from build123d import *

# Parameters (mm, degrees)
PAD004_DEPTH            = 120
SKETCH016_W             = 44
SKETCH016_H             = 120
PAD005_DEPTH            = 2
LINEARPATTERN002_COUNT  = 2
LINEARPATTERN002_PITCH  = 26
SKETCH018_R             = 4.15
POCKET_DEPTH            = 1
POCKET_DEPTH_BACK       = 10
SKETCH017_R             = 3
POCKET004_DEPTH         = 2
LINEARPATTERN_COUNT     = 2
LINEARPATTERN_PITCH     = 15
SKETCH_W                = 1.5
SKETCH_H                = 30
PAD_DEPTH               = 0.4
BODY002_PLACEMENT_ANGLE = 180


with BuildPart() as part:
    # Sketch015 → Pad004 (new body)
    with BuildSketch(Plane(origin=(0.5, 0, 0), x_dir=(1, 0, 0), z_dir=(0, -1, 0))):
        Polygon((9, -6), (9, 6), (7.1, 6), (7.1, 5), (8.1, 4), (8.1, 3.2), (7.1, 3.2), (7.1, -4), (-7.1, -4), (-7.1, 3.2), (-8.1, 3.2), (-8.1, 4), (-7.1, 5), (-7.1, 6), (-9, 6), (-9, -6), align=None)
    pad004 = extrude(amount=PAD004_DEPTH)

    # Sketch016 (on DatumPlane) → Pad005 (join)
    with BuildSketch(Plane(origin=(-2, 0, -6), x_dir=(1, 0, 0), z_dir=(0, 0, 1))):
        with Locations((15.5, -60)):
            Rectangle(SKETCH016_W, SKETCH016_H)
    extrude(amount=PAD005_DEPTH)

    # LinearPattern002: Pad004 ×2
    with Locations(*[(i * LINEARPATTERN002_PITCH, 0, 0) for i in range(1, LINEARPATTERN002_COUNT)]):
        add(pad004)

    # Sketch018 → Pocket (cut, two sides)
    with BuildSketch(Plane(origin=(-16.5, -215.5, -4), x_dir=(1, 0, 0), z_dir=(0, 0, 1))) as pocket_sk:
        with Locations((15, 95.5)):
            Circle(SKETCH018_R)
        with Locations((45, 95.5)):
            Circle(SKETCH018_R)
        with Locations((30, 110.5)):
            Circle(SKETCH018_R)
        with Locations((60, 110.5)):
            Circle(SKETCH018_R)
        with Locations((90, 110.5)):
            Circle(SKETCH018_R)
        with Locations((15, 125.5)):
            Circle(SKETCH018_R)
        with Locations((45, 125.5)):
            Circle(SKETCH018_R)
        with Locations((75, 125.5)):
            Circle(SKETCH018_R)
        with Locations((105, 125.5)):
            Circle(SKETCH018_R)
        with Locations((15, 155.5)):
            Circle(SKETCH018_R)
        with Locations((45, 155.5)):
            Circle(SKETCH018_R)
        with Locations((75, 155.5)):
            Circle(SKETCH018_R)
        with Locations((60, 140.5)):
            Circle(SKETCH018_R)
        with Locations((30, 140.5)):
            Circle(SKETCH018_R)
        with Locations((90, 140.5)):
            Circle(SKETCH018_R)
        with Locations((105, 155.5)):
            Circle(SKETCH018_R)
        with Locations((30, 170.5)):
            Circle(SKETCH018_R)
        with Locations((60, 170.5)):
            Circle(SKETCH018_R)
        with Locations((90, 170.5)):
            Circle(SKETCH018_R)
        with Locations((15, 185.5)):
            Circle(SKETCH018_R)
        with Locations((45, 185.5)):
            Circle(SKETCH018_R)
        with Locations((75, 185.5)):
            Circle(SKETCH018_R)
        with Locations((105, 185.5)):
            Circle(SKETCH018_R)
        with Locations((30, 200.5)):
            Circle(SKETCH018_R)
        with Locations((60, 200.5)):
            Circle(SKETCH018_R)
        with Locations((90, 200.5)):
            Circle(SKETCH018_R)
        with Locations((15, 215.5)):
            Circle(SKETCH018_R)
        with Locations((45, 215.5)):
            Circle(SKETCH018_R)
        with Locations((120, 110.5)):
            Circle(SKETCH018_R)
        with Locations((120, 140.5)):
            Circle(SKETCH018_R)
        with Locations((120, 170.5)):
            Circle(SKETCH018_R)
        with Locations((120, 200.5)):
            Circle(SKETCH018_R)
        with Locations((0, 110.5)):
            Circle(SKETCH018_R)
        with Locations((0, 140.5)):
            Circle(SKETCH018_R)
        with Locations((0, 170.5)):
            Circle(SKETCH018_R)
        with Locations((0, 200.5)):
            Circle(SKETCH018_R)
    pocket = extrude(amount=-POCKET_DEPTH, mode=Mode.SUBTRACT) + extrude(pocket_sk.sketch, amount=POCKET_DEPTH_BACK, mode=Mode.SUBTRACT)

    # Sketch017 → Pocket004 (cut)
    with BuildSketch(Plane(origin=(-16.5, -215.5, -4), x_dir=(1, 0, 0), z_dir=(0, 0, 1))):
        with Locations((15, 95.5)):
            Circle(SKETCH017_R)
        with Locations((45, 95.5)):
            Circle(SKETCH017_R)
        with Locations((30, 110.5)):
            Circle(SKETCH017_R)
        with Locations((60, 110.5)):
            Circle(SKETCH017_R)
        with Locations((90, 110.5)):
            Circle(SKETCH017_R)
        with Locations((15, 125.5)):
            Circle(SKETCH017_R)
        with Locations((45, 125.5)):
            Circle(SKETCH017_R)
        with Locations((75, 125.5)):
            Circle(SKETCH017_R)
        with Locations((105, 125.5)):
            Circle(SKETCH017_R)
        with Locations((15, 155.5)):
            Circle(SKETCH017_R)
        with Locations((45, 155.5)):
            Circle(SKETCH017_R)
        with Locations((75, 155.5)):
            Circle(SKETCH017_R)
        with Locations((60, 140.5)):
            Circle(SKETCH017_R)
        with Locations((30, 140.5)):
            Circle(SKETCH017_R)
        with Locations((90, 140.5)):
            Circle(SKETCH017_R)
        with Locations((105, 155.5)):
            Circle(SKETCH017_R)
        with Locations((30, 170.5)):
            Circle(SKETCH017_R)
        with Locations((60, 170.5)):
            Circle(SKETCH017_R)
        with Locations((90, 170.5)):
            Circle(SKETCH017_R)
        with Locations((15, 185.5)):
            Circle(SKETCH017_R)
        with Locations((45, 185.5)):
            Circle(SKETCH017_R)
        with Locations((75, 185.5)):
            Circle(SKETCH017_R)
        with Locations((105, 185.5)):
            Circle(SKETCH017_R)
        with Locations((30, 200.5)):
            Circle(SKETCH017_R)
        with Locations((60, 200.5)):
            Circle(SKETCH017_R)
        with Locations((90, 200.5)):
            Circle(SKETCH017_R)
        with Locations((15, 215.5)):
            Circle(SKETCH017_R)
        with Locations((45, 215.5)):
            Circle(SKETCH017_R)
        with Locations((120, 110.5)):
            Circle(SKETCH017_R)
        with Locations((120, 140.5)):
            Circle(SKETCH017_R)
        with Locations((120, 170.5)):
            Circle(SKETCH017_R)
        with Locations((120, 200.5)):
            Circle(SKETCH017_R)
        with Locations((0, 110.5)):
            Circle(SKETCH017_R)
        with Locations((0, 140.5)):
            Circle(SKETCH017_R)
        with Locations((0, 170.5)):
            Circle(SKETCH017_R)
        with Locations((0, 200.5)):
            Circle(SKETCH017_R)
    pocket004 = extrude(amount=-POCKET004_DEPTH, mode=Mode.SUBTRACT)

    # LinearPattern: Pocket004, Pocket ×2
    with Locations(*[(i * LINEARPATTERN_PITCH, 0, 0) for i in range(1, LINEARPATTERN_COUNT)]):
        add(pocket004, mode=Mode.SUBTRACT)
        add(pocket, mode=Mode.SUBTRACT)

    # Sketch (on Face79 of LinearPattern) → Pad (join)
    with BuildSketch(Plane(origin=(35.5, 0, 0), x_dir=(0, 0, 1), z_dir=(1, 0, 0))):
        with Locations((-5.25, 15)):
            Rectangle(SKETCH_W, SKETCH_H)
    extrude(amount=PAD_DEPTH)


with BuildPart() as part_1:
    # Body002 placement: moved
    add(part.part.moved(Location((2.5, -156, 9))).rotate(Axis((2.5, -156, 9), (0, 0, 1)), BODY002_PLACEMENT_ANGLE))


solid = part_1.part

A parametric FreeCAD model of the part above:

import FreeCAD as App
import Part
import Sketcher

V = App.Vector
Q = App.Units.Quantity


def add_polygon(sketch, points):
    """Adds a closed chain of lines whose ends are joined by coincident constraints."""
    first, n = sketch.GeometryCount, len(points)
    for a, b in zip(points, points[1:] + points[:1]):
        sketch.addGeometry(Part.LineSegment(App.Vector(*a, 0), App.Vector(*b, 0)), False)
    for i in range(n):
        sketch.addConstraint(Sketcher.Constraint("Coincident", first + i, 2, first + (i + 1) % n, 1))

doc = App.newDocument("Part")
body = doc.addObject("PartDesign::Body", "Body")

sketch1 = body.newObject("Sketcher::SketchObject", "Sketch")
sketch1.AttachmentSupport = (doc.getObject("XZ_Plane"), [""])
sketch1.MapMode = "FlatFace"
add_polygon(sketch1, [(9.5, -6), (9.5, 6), (7.6, 6), (7.6, 5), (8.6, 4), (8.6, 3.2), (7.6, 3.2), (7.6, -4), (-6.6, -4), (-6.6, 3.2), (-7.6, 3.2), (-7.6, 4), (-6.6, 5), (-6.6, 6), (-8.5, 6), (-8.5, -6)])
sketch1.addConstraint(Sketcher.Constraint("Vertical", 0))
sketch1.addConstraint(Sketcher.Constraint("Horizontal", 1))
sketch1.addConstraint(Sketcher.Constraint("Vertical", 2))
sketch1.addConstraint(Sketcher.Constraint("Vertical", 4))
sketch1.addConstraint(Sketcher.Constraint("Horizontal", 5))
sketch1.addConstraint(Sketcher.Constraint("Vertical", 6))
sketch1.addConstraint(Sketcher.Constraint("Horizontal", 7))
sketch1.addConstraint(Sketcher.Constraint("Vertical", 8))
sketch1.addConstraint(Sketcher.Constraint("Horizontal", 9))
sketch1.addConstraint(Sketcher.Constraint("Vertical", 10))
sketch1.addConstraint(Sketcher.Constraint("Vertical", 12))
sketch1.addConstraint(Sketcher.Constraint("Horizontal", 13))
sketch1.addConstraint(Sketcher.Constraint("Vertical", 14))
sketch1.addConstraint(Sketcher.Constraint("Horizontal", 15))
sketch1.addConstraint(Sketcher.Constraint("Symmetric", 6, 2, 10, 2, -1, 1))
sketch1.addConstraint(Sketcher.Constraint("Perpendicular", 3, 11))
sketch1.addConstraint(Sketcher.Constraint("Horizontal", 5, 2, 8, 2))
sketch1.addConstraint(Sketcher.Constraint("Horizontal", 3, 2, 10, 2))
sketch1.addConstraint(Sketcher.Constraint("Horizontal", 2, 2, 11, 2))
sketch1.addConstraint(Sketcher.Constraint("Horizontal", 1, 2, 12, 2))
sketch1.addConstraint(Sketcher.Constraint("Vertical", 2, 2, 5, 2))
sketch1.addConstraint(Sketcher.Constraint("Vertical", 8, 2, 11, 2))
sketch1.addConstraint(Sketcher.Constraint("Equal", 5, 9))
sketch1.addConstraint(Sketcher.Constraint("Equal", 1, 13))
sketch1.addConstraint(Sketcher.Constraint("Equal", 9, 2))
sketch1.addConstraint(Sketcher.Constraint("DistanceX", 5, 2, 5, 1, Q("1 mm")))
sketch1.addConstraint(Sketcher.Constraint("DistanceX", 15, 1, 15, 2, Q("18 mm")))
sketch1.addConstraint(Sketcher.Constraint("DistanceY", 0, 1, 0, 2, Q("12 mm")))
sketch1.addConstraint(Sketcher.Constraint("DistanceX", 1, 2, 1, 1, Q("1.9 mm")))
sketch1.addConstraint(Sketcher.Constraint("DistanceY", 4, 2, 4, 1, Q("0.8 mm")))
sketch1.addConstraint(Sketcher.Constraint("DistanceY", 6, 2, 6, 1, Q("7.2 mm")))
pad1 = body.newObject("PartDesign::Pad", "Pad")
pad1.Profile = sketch1
pad1.Length = 120

sketch2 = body.newObject("Sketcher::SketchObject", "Sketch001")
sketch2.AttachmentSupport = (doc.getObject("XY_Plane"), [""])
sketch2.MapMode = "FlatFace"
sketch2.AttachmentOffset = App.Placement(V(0, 0, -6), App.Rotation())
add_polygon(sketch2, [(-8.5, 0), (-8.5, -120), (35.5, -120), (35.5, 0)])
sketch2.addConstraint(Sketcher.Constraint("Vertical", 0))
sketch2.addConstraint(Sketcher.Constraint("Horizontal", 1))
sketch2.addConstraint(Sketcher.Constraint("Vertical", 2))
sketch2.addConstraint(Sketcher.Constraint("Horizontal", 3))
sketch2.addConstraint(Sketcher.Constraint("PointOnObject", 2, 2, -1))
sketch2.addConstraint(Sketcher.Constraint("DistanceX", 1, 1, 1, 2, Q("44 mm")))
sketch2.addConstraint(Sketcher.Constraint("DistanceY", 0, 2, 0, 1, Q("120 mm")))
sketch2.addConstraint(Sketcher.Constraint("DistanceX", 0, 2, -1, 1, Q("8.5 mm")))
pad2 = body.newObject("PartDesign::Pad", "Pad001")
pad2.Profile = sketch2
pad2.Length = 2
doc.recompute()

linearpattern = body.newObject("PartDesign::LinearPattern", "LinearPattern")
linearpattern.Originals = [pad1]
linearpattern.Direction = (doc.getObject("X_Axis"), [""])
linearpattern.Mode = "offset"
linearpattern.Offset = 26
linearpattern.Occurrences = 2
body.Tip = linearpattern

sketch3 = body.newObject("Sketcher::SketchObject", "Sketch002")
sketch3.AttachmentSupport = (doc.getObject("XY_Plane"), [""])
sketch3.MapMode = "FlatFace"
sketch3.AttachmentOffset = App.Placement(V(0, 0, -4), App.Rotation())
sketch3.addGeometry(Part.Circle(V(-1.5, -120, 0), V(0, 0, 1), 4.15), False)
sketch3.addGeometry(Part.Circle(V(28.5, -120, 0), V(0, 0, 1), 4.15), False)
sketch3.addGeometry(Part.Circle(V(13.5, -105, 0), V(0, 0, 1), 4.15), False)
sketch3.addGeometry(Part.Circle(V(43.5, -105, 0), V(0, 0, 1), 4.15), False)
sketch3.addGeometry(Part.Circle(V(73.5, -105, 0), V(0, 0, 1), 4.15), False)
sketch3.addGeometry(Part.Circle(V(-1.5, -90, 0), V(0, 0, 1), 4.15), False)
sketch3.addGeometry(Part.Circle(V(28.5, -90, 0), V(0, 0, 1), 4.15), False)
sketch3.addGeometry(Part.Circle(V(58.5, -90, 0), V(0, 0, 1), 4.15), False)
sketch3.addGeometry(Part.Circle(V(88.5, -90, 0), V(0, 0, 1), 4.15), False)
sketch3.addGeometry(Part.Circle(V(-1.5, -60, 0), V(0, 0, 1), 4.15), False)
sketch3.addGeometry(Part.Circle(V(28.5, -60, 0), V(0, 0, 1), 4.15), False)
sketch3.addGeometry(Part.Circle(V(58.5, -60, 0), V(0, 0, 1), 4.15), False)
sketch3.addGeometry(Part.Circle(V(43.5, -75, 0), V(0, 0, 1), 4.15), False)
sketch3.addGeometry(Part.Circle(V(13.5, -75, 0), V(0, 0, 1), 4.15), False)
sketch3.addGeometry(Part.Circle(V(73.5, -75, 0), V(0, 0, 1), 4.15), False)
sketch3.addGeometry(Part.Circle(V(88.5, -60, 0), V(0, 0, 1), 4.15), False)
sketch3.addGeometry(Part.Circle(V(13.5, -45, 0), V(0, 0, 1), 4.15), False)
sketch3.addGeometry(Part.Circle(V(43.5, -45, 0), V(0, 0, 1), 4.15), False)
sketch3.addGeometry(Part.Circle(V(73.5, -45, 0), V(0, 0, 1), 4.15), False)
sketch3.addGeometry(Part.Circle(V(-1.5, -30, 0), V(0, 0, 1), 4.15), False)
sketch3.addGeometry(Part.Circle(V(28.5, -30, 0), V(0, 0, 1), 4.15), False)
sketch3.addGeometry(Part.Circle(V(58.5, -30, 0), V(0, 0, 1), 4.15), False)
sketch3.addGeometry(Part.Circle(V(88.5, -30, 0), V(0, 0, 1), 4.15), False)
sketch3.addGeometry(Part.Circle(V(13.5, -15, 0), V(0, 0, 1), 4.15), False)
sketch3.addGeometry(Part.Circle(V(43.5, -15, 0), V(0, 0, 1), 4.15), False)
sketch3.addGeometry(Part.Circle(V(73.5, -15, 0), V(0, 0, 1), 4.15), False)
sketch3.addGeometry(Part.Circle(V(-1.5, 0, 0), V(0, 0, 1), 4.15), False)
sketch3.addGeometry(Part.Circle(V(28.5, 0, 0), V(0, 0, 1), 4.15), False)
sketch3.addGeometry(Part.Circle(V(103.5, -105, 0), V(0, 0, 1), 4.15), False)
sketch3.addGeometry(Part.Circle(V(103.5, -75, 0), V(0, 0, 1), 4.15), False)
sketch3.addGeometry(Part.Circle(V(103.5, -45, 0), V(0, 0, 1), 4.15), False)
sketch3.addGeometry(Part.Circle(V(103.5, -15, 0), V(0, 0, 1), 4.15), False)
sketch3.addGeometry(Part.Circle(V(-16.5, -105, 0), V(0, 0, 1), 4.15), False)
sketch3.addGeometry(Part.Circle(V(-16.5, -75, 0), V(0, 0, 1), 4.15), False)
sketch3.addGeometry(Part.Circle(V(-16.5, -45, 0), V(0, 0, 1), 4.15), False)
sketch3.addGeometry(Part.Circle(V(-16.5, -15, 0), V(0, 0, 1), 4.15), False)
sketch3.addConstraint(Sketcher.Constraint("Equal", 0, 1))
sketch3.addConstraint(Sketcher.Constraint("Equal", 1, 2))
sketch3.addConstraint(Sketcher.Constraint("Equal", 2, 3))
sketch3.addConstraint(Sketcher.Constraint("Equal", 3, 4))
sketch3.addConstraint(Sketcher.Constraint("Equal", 4, 5))
sketch3.addConstraint(Sketcher.Constraint("Equal", 5, 6))
sketch3.addConstraint(Sketcher.Constraint("Equal", 6, 7))
sketch3.addConstraint(Sketcher.Constraint("Equal", 7, 8))
sketch3.addConstraint(Sketcher.Constraint("Equal", 8, 9))
sketch3.addConstraint(Sketcher.Constraint("Equal", 9, 10))
sketch3.addConstraint(Sketcher.Constraint("Equal", 10, 11))
sketch3.addConstraint(Sketcher.Constraint("Equal", 11, 12))
sketch3.addConstraint(Sketcher.Constraint("Equal", 12, 13))
sketch3.addConstraint(Sketcher.Constraint("Equal", 13, 14))
sketch3.addConstraint(Sketcher.Constraint("Equal", 14, 15))
sketch3.addConstraint(Sketcher.Constraint("Equal", 15, 16))
sketch3.addConstraint(Sketcher.Constraint("Equal", 16, 17))
sketch3.addConstraint(Sketcher.Constraint("Equal", 17, 18))
sketch3.addConstraint(Sketcher.Constraint("Equal", 18, 19))
sketch3.addConstraint(Sketcher.Constraint("Equal", 19, 20))
sketch3.addConstraint(Sketcher.Constraint("Equal", 20, 21))
sketch3.addConstraint(Sketcher.Constraint("Equal", 21, 22))
sketch3.addConstraint(Sketcher.Constraint("Equal", 22, 23))
sketch3.addConstraint(Sketcher.Constraint("Equal", 23, 24))
sketch3.addConstraint(Sketcher.Constraint("Equal", 24, 25))
sketch3.addConstraint(Sketcher.Constraint("Equal", 25, 26))
sketch3.addConstraint(Sketcher.Constraint("Equal", 26, 27))
sketch3.addConstraint(Sketcher.Constraint("Equal", 27, 28))
sketch3.addConstraint(Sketcher.Constraint("Equal", 28, 29))
sketch3.addConstraint(Sketcher.Constraint("Equal", 29, 30))
sketch3.addConstraint(Sketcher.Constraint("Equal", 30, 31))
sketch3.addConstraint(Sketcher.Constraint("Equal", 31, 32))
sketch3.addConstraint(Sketcher.Constraint("Equal", 32, 33))
sketch3.addConstraint(Sketcher.Constraint("Equal", 33, 34))
sketch3.addConstraint(Sketcher.Constraint("Equal", 34, 35))
sketch3.addConstraint(Sketcher.Constraint("PointOnObject", 26, 3, -1))
sketch3.addConstraint(Sketcher.Constraint("PointOnObject", 27, 3, -1))
sketch3.addConstraint(Sketcher.Constraint("Horizontal", 0, 3, 1, 3))
sketch3.addConstraint(Sketcher.Constraint("Horizontal", 2, 3, 3, 3))
sketch3.addConstraint(Sketcher.Constraint("Horizontal", 3, 3, 4, 3))
sketch3.addConstraint(Sketcher.Constraint("Horizontal", 5, 3, 6, 3))
sketch3.addConstraint(Sketcher.Constraint("Horizontal", 6, 3, 7, 3))
sketch3.addConstraint(Sketcher.Constraint("Horizontal", 7, 3, 8, 3))
sketch3.addConstraint(Sketcher.Constraint("Horizontal", 9, 3, 10, 3))
sketch3.addConstraint(Sketcher.Constraint("Horizontal", 10, 3, 11, 3))
sketch3.addConstraint(Sketcher.Constraint("Horizontal", 12, 3, 13, 3))
sketch3.addConstraint(Sketcher.Constraint("Horizontal", 13, 3, 14, 3))
sketch3.addConstraint(Sketcher.Constraint("Horizontal", 11, 3, 15, 3))
sketch3.addConstraint(Sketcher.Constraint("Horizontal", 16, 3, 17, 3))
sketch3.addConstraint(Sketcher.Constraint("Horizontal", 17, 3, 18, 3))
sketch3.addConstraint(Sketcher.Constraint("Horizontal", 19, 3, 20, 3))
sketch3.addConstraint(Sketcher.Constraint("Horizontal", 20, 3, 21, 3))
sketch3.addConstraint(Sketcher.Constraint("Horizontal", 21, 3, 22, 3))
sketch3.addConstraint(Sketcher.Constraint("Horizontal", 23, 3, 24, 3))
sketch3.addConstraint(Sketcher.Constraint("Horizontal", 24, 3, 25, 3))
sketch3.addConstraint(Sketcher.Constraint("Horizontal", 4, 3, 28, 3))
sketch3.addConstraint(Sketcher.Constraint("Horizontal", 14, 3, 29, 3))
sketch3.addConstraint(Sketcher.Constraint("Horizontal", 18, 3, 30, 3))
sketch3.addConstraint(Sketcher.Constraint("Horizontal", 25, 3, 31, 3))
sketch3.addConstraint(Sketcher.Constraint("Horizontal", 28, 3, 32, 3))
sketch3.addConstraint(Sketcher.Constraint("Horizontal", 29, 3, 33, 3))
sketch3.addConstraint(Sketcher.Constraint("Horizontal", 30, 3, 34, 3))
sketch3.addConstraint(Sketcher.Constraint("Horizontal", 31, 3, 35, 3))
sketch3.addConstraint(Sketcher.Constraint("Vertical", 0, 3, 5, 3))
sketch3.addConstraint(Sketcher.Constraint("Vertical", 1, 3, 6, 3))
sketch3.addConstraint(Sketcher.Constraint("Vertical", 5, 3, 9, 3))
sketch3.addConstraint(Sketcher.Constraint("Vertical", 6, 3, 10, 3))
sketch3.addConstraint(Sketcher.Constraint("Vertical", 7, 3, 11, 3))
sketch3.addConstraint(Sketcher.Constraint("Vertical", 3, 3, 12, 3))
sketch3.addConstraint(Sketcher.Constraint("Vertical", 2, 3, 13, 3))
sketch3.addConstraint(Sketcher.Constraint("Vertical", 4, 3, 14, 3))
sketch3.addConstraint(Sketcher.Constraint("Vertical", 8, 3, 15, 3))
sketch3.addConstraint(Sketcher.Constraint("Vertical", 13, 3, 16, 3))
sketch3.addConstraint(Sketcher.Constraint("Vertical", 12, 3, 17, 3))
sketch3.addConstraint(Sketcher.Constraint("Vertical", 14, 3, 18, 3))
sketch3.addConstraint(Sketcher.Constraint("Vertical", 9, 3, 19, 3))
sketch3.addConstraint(Sketcher.Constraint("Vertical", 10, 3, 20, 3))
sketch3.addConstraint(Sketcher.Constraint("Vertical", 11, 3, 21, 3))
sketch3.addConstraint(Sketcher.Constraint("Vertical", 15, 3, 22, 3))
sketch3.addConstraint(Sketcher.Constraint("Vertical", 16, 3, 23, 3))
sketch3.addConstraint(Sketcher.Constraint("Vertical", 17, 3, 24, 3))
sketch3.addConstraint(Sketcher.Constraint("Vertical", 18, 3, 25, 3))
sketch3.addConstraint(Sketcher.Constraint("Vertical", 19, 3, 26, 3))
sketch3.addConstraint(Sketcher.Constraint("Vertical", 20, 3, 27, 3))
sketch3.addConstraint(Sketcher.Constraint("Vertical", 28, 3, 29, 3))
sketch3.addConstraint(Sketcher.Constraint("Vertical", 29, 3, 30, 3))
sketch3.addConstraint(Sketcher.Constraint("Vertical", 30, 3, 31, 3))
sketch3.addConstraint(Sketcher.Constraint("Vertical", 32, 3, 33, 3))
sketch3.addConstraint(Sketcher.Constraint("Vertical", 33, 3, 34, 3))
sketch3.addConstraint(Sketcher.Constraint("Vertical", 34, 3, 35, 3))
sketch3.addConstraint(Sketcher.Constraint("Diameter", 0, Q("8.3 mm")))
sketch3.addConstraint(Sketcher.Constraint("DistanceY", 0, 3, -1, 1, Q("120 mm")))
sketch3.addConstraint(Sketcher.Constraint("DistanceY", 2, 3, -1, 1, Q("105 mm")))
sketch3.addConstraint(Sketcher.Constraint("DistanceY", 5, 3, -1, 1, Q("90 mm")))
sketch3.addConstraint(Sketcher.Constraint("DistanceY", 9, 3, -1, 1, Q("60 mm")))
sketch3.addConstraint(Sketcher.Constraint("DistanceY", 12, 3, -1, 1, Q("75 mm")))
sketch3.addConstraint(Sketcher.Constraint("DistanceY", 16, 3, -1, 1, Q("45 mm")))
sketch3.addConstraint(Sketcher.Constraint("DistanceY", 19, 3, -1, 1, Q("30 mm")))
sketch3.addConstraint(Sketcher.Constraint("DistanceY", 23, 3, -1, 1, Q("15 mm")))
sketch3.addConstraint(Sketcher.Constraint("DistanceX", 0, 3, 1, 3, Q("30 mm")))
sketch3.addConstraint(Sketcher.Constraint("DistanceX", 0, 3, 2, 3, Q("15 mm")))
sketch3.addConstraint(Sketcher.Constraint("DistanceX", 1, 3, 3, 3, Q("15 mm")))
sketch3.addConstraint(Sketcher.Constraint("DistanceX", 3, 3, 4, 3, Q("30 mm")))
sketch3.addConstraint(Sketcher.Constraint("DistanceX", 3, 3, 7, 3, Q("15 mm")))
sketch3.addConstraint(Sketcher.Constraint("DistanceX", 4, 3, 8, 3, Q("15 mm")))
sketch3.addConstraint(Sketcher.Constraint("DistanceX", 8, 3, 28, 3, Q("15 mm")))
sketch3.addConstraint(Sketcher.Constraint("DistanceX", 32, 3, 0, 3, Q("15 mm")))
sketch3.addConstraint(Sketcher.Constraint("DistanceX", 0, 3, -1, 1, Q("1.5 mm")))
pocket1 = body.newObject("PartDesign::Pocket", "Pocket")
pocket1.Profile = sketch3
pocket1.Type = "TwoLengths"
pocket1.Length = 1
pocket1.Length2 = 10

sketch4 = body.newObject("Sketcher::SketchObject", "Sketch003")
sketch4.AttachmentSupport = (doc.getObject("XY_Plane"), [""])
sketch4.MapMode = "FlatFace"
sketch4.AttachmentOffset = App.Placement(V(0, 0, -4), App.Rotation())
sketch4.addGeometry(Part.Circle(V(-1.5, -120, 0), V(0, 0, 1), 3), False)
sketch4.addGeometry(Part.Circle(V(28.5, -120, 0), V(0, 0, 1), 3), False)
sketch4.addGeometry(Part.Circle(V(13.5, -105, 0), V(0, 0, 1), 3), False)
sketch4.addGeometry(Part.Circle(V(43.5, -105, 0), V(0, 0, 1), 3), False)
sketch4.addGeometry(Part.Circle(V(73.5, -105, 0), V(0, 0, 1), 3), False)
sketch4.addGeometry(Part.Circle(V(-1.5, -90, 0), V(0, 0, 1), 3), False)
sketch4.addGeometry(Part.Circle(V(28.5, -90, 0), V(0, 0, 1), 3), False)
sketch4.addGeometry(Part.Circle(V(58.5, -90, 0), V(0, 0, 1), 3), False)
sketch4.addGeometry(Part.Circle(V(88.5, -90, 0), V(0, 0, 1), 3), False)
sketch4.addGeometry(Part.Circle(V(-1.5, -60, 0), V(0, 0, 1), 3), False)
sketch4.addGeometry(Part.Circle(V(28.5, -60, 0), V(0, 0, 1), 3), False)
sketch4.addGeometry(Part.Circle(V(58.5, -60, 0), V(0, 0, 1), 3), False)
sketch4.addGeometry(Part.Circle(V(43.5, -75, 0), V(0, 0, 1), 3), False)
sketch4.addGeometry(Part.Circle(V(13.5, -75, 0), V(0, 0, 1), 3), False)
sketch4.addGeometry(Part.Circle(V(73.5, -75, 0), V(0, 0, 1), 3), False)
sketch4.addGeometry(Part.Circle(V(88.5, -60, 0), V(0, 0, 1), 3), False)
sketch4.addGeometry(Part.Circle(V(13.5, -45, 0), V(0, 0, 1), 3), False)
sketch4.addGeometry(Part.Circle(V(43.5, -45, 0), V(0, 0, 1), 3), False)
sketch4.addGeometry(Part.Circle(V(73.5, -45, 0), V(0, 0, 1), 3), False)
sketch4.addGeometry(Part.Circle(V(-1.5, -30, 0), V(0, 0, 1), 3), False)
sketch4.addGeometry(Part.Circle(V(28.5, -30, 0), V(0, 0, 1), 3), False)
sketch4.addGeometry(Part.Circle(V(58.5, -30, 0), V(0, 0, 1), 3), False)
sketch4.addGeometry(Part.Circle(V(88.5, -30, 0), V(0, 0, 1), 3), False)
sketch4.addGeometry(Part.Circle(V(13.5, -15, 0), V(0, 0, 1), 3), False)
sketch4.addGeometry(Part.Circle(V(43.5, -15, 0), V(0, 0, 1), 3), False)
sketch4.addGeometry(Part.Circle(V(73.5, -15, 0), V(0, 0, 1), 3), False)
sketch4.addGeometry(Part.Circle(V(-1.5, 0, 0), V(0, 0, 1), 3), False)
sketch4.addGeometry(Part.Circle(V(28.5, 0, 0), V(0, 0, 1), 3), False)
sketch4.addGeometry(Part.Circle(V(103.5, -105, 0), V(0, 0, 1), 3), False)
sketch4.addGeometry(Part.Circle(V(103.5, -75, 0), V(0, 0, 1), 3), False)
sketch4.addGeometry(Part.Circle(V(103.5, -45, 0), V(0, 0, 1), 3), False)
sketch4.addGeometry(Part.Circle(V(103.5, -15, 0), V(0, 0, 1), 3), False)
sketch4.addGeometry(Part.Circle(V(-16.5, -105, 0), V(0, 0, 1), 3), False)
sketch4.addGeometry(Part.Circle(V(-16.5, -75, 0), V(0, 0, 1), 3), False)
sketch4.addGeometry(Part.Circle(V(-16.5, -45, 0), V(0, 0, 1), 3), False)
sketch4.addGeometry(Part.Circle(V(-16.5, -15, 0), V(0, 0, 1), 3), False)
sketch4.addConstraint(Sketcher.Constraint("Equal", 0, 1))
sketch4.addConstraint(Sketcher.Constraint("Equal", 1, 2))
sketch4.addConstraint(Sketcher.Constraint("Equal", 2, 3))
sketch4.addConstraint(Sketcher.Constraint("Equal", 3, 4))
sketch4.addConstraint(Sketcher.Constraint("Equal", 4, 5))
sketch4.addConstraint(Sketcher.Constraint("Equal", 5, 6))
sketch4.addConstraint(Sketcher.Constraint("Equal", 6, 7))
sketch4.addConstraint(Sketcher.Constraint("Equal", 7, 8))
sketch4.addConstraint(Sketcher.Constraint("Equal", 8, 9))
sketch4.addConstraint(Sketcher.Constraint("Equal", 9, 10))
sketch4.addConstraint(Sketcher.Constraint("Equal", 10, 11))
sketch4.addConstraint(Sketcher.Constraint("Equal", 11, 12))
sketch4.addConstraint(Sketcher.Constraint("Equal", 12, 13))
sketch4.addConstraint(Sketcher.Constraint("Equal", 13, 14))
sketch4.addConstraint(Sketcher.Constraint("Equal", 14, 15))
sketch4.addConstraint(Sketcher.Constraint("Equal", 15, 16))
sketch4.addConstraint(Sketcher.Constraint("Equal", 16, 17))
sketch4.addConstraint(Sketcher.Constraint("Equal", 17, 18))
sketch4.addConstraint(Sketcher.Constraint("Equal", 18, 19))
sketch4.addConstraint(Sketcher.Constraint("Equal", 19, 20))
sketch4.addConstraint(Sketcher.Constraint("Equal", 20, 21))
sketch4.addConstraint(Sketcher.Constraint("Equal", 21, 22))
sketch4.addConstraint(Sketcher.Constraint("Equal", 22, 23))
sketch4.addConstraint(Sketcher.Constraint("Equal", 23, 24))
sketch4.addConstraint(Sketcher.Constraint("Equal", 24, 25))
sketch4.addConstraint(Sketcher.Constraint("Equal", 25, 26))
sketch4.addConstraint(Sketcher.Constraint("Equal", 26, 27))
sketch4.addConstraint(Sketcher.Constraint("Equal", 27, 28))
sketch4.addConstraint(Sketcher.Constraint("Equal", 28, 29))
sketch4.addConstraint(Sketcher.Constraint("Equal", 29, 30))
sketch4.addConstraint(Sketcher.Constraint("Equal", 30, 31))
sketch4.addConstraint(Sketcher.Constraint("Equal", 31, 32))
sketch4.addConstraint(Sketcher.Constraint("Equal", 32, 33))
sketch4.addConstraint(Sketcher.Constraint("Equal", 33, 34))
sketch4.addConstraint(Sketcher.Constraint("Equal", 34, 35))
sketch4.addConstraint(Sketcher.Constraint("PointOnObject", 26, 3, -1))
sketch4.addConstraint(Sketcher.Constraint("PointOnObject", 27, 3, -1))
sketch4.addConstraint(Sketcher.Constraint("Horizontal", 0, 3, 1, 3))
sketch4.addConstraint(Sketcher.Constraint("Horizontal", 2, 3, 3, 3))
sketch4.addConstraint(Sketcher.Constraint("Horizontal", 3, 3, 4, 3))
sketch4.addConstraint(Sketcher.Constraint("Horizontal", 5, 3, 6, 3))
sketch4.addConstraint(Sketcher.Constraint("Horizontal", 6, 3, 7, 3))
sketch4.addConstraint(Sketcher.Constraint("Horizontal", 7, 3, 8, 3))
sketch4.addConstraint(Sketcher.Constraint("Horizontal", 9, 3, 10, 3))
sketch4.addConstraint(Sketcher.Constraint("Horizontal", 10, 3, 11, 3))
sketch4.addConstraint(Sketcher.Constraint("Horizontal", 12, 3, 13, 3))
sketch4.addConstraint(Sketcher.Constraint("Horizontal", 13, 3, 14, 3))
sketch4.addConstraint(Sketcher.Constraint("Horizontal", 11, 3, 15, 3))
sketch4.addConstraint(Sketcher.Constraint("Horizontal", 16, 3, 17, 3))
sketch4.addConstraint(Sketcher.Constraint("Horizontal", 17, 3, 18, 3))
sketch4.addConstraint(Sketcher.Constraint("Horizontal", 19, 3, 20, 3))
sketch4.addConstraint(Sketcher.Constraint("Horizontal", 20, 3, 21, 3))
sketch4.addConstraint(Sketcher.Constraint("Horizontal", 21, 3, 22, 3))
sketch4.addConstraint(Sketcher.Constraint("Horizontal", 23, 3, 24, 3))
sketch4.addConstraint(Sketcher.Constraint("Horizontal", 24, 3, 25, 3))
sketch4.addConstraint(Sketcher.Constraint("Horizontal", 4, 3, 28, 3))
sketch4.addConstraint(Sketcher.Constraint("Horizontal", 14, 3, 29, 3))
sketch4.addConstraint(Sketcher.Constraint("Horizontal", 18, 3, 30, 3))
sketch4.addConstraint(Sketcher.Constraint("Horizontal", 25, 3, 31, 3))
sketch4.addConstraint(Sketcher.Constraint("Horizontal", 28, 3, 32, 3))
sketch4.addConstraint(Sketcher.Constraint("Horizontal", 29, 3, 33, 3))
sketch4.addConstraint(Sketcher.Constraint("Horizontal", 30, 3, 34, 3))
sketch4.addConstraint(Sketcher.Constraint("Horizontal", 31, 3, 35, 3))
sketch4.addConstraint(Sketcher.Constraint("Vertical", 0, 3, 5, 3))
sketch4.addConstraint(Sketcher.Constraint("Vertical", 1, 3, 6, 3))
sketch4.addConstraint(Sketcher.Constraint("Vertical", 5, 3, 9, 3))
sketch4.addConstraint(Sketcher.Constraint("Vertical", 6, 3, 10, 3))
sketch4.addConstraint(Sketcher.Constraint("Vertical", 7, 3, 11, 3))
sketch4.addConstraint(Sketcher.Constraint("Vertical", 3, 3, 12, 3))
sketch4.addConstraint(Sketcher.Constraint("Vertical", 2, 3, 13, 3))
sketch4.addConstraint(Sketcher.Constraint("Vertical", 4, 3, 14, 3))
sketch4.addConstraint(Sketcher.Constraint("Vertical", 8, 3, 15, 3))
sketch4.addConstraint(Sketcher.Constraint("Vertical", 13, 3, 16, 3))
sketch4.addConstraint(Sketcher.Constraint("Vertical", 12, 3, 17, 3))
sketch4.addConstraint(Sketcher.Constraint("Vertical", 14, 3, 18, 3))
sketch4.addConstraint(Sketcher.Constraint("Vertical", 9, 3, 19, 3))
sketch4.addConstraint(Sketcher.Constraint("Vertical", 10, 3, 20, 3))
sketch4.addConstraint(Sketcher.Constraint("Vertical", 11, 3, 21, 3))
sketch4.addConstraint(Sketcher.Constraint("Vertical", 15, 3, 22, 3))
sketch4.addConstraint(Sketcher.Constraint("Vertical", 16, 3, 23, 3))
sketch4.addConstraint(Sketcher.Constraint("Vertical", 17, 3, 24, 3))
sketch4.addConstraint(Sketcher.Constraint("Vertical", 18, 3, 25, 3))
sketch4.addConstraint(Sketcher.Constraint("Vertical", 19, 3, 26, 3))
sketch4.addConstraint(Sketcher.Constraint("Vertical", 20, 3, 27, 3))
sketch4.addConstraint(Sketcher.Constraint("Vertical", 28, 3, 29, 3))
sketch4.addConstraint(Sketcher.Constraint("Vertical", 29, 3, 30, 3))
sketch4.addConstraint(Sketcher.Constraint("Vertical", 30, 3, 31, 3))
sketch4.addConstraint(Sketcher.Constraint("Vertical", 32, 3, 33, 3))
sketch4.addConstraint(Sketcher.Constraint("Vertical", 33, 3, 34, 3))
sketch4.addConstraint(Sketcher.Constraint("Vertical", 34, 3, 35, 3))
sketch4.addConstraint(Sketcher.Constraint("Diameter", 0, Q("6 mm")))
sketch4.addConstraint(Sketcher.Constraint("DistanceY", 0, 3, -1, 1, Q("120 mm")))
sketch4.addConstraint(Sketcher.Constraint("DistanceY", 2, 3, -1, 1, Q("105 mm")))
sketch4.addConstraint(Sketcher.Constraint("DistanceY", 5, 3, -1, 1, Q("90 mm")))
sketch4.addConstraint(Sketcher.Constraint("DistanceY", 9, 3, -1, 1, Q("60 mm")))
sketch4.addConstraint(Sketcher.Constraint("DistanceY", 12, 3, -1, 1, Q("75 mm")))
sketch4.addConstraint(Sketcher.Constraint("DistanceY", 16, 3, -1, 1, Q("45 mm")))
sketch4.addConstraint(Sketcher.Constraint("DistanceY", 19, 3, -1, 1, Q("30 mm")))
sketch4.addConstraint(Sketcher.Constraint("DistanceY", 23, 3, -1, 1, Q("15 mm")))
sketch4.addConstraint(Sketcher.Constraint("DistanceX", 0, 3, 1, 3, Q("30 mm")))
sketch4.addConstraint(Sketcher.Constraint("DistanceX", 0, 3, 2, 3, Q("15 mm")))
sketch4.addConstraint(Sketcher.Constraint("DistanceX", 1, 3, 3, 3, Q("15 mm")))
sketch4.addConstraint(Sketcher.Constraint("DistanceX", 3, 3, 4, 3, Q("30 mm")))
sketch4.addConstraint(Sketcher.Constraint("DistanceX", 3, 3, 7, 3, Q("15 mm")))
sketch4.addConstraint(Sketcher.Constraint("DistanceX", 4, 3, 8, 3, Q("15 mm")))
sketch4.addConstraint(Sketcher.Constraint("DistanceX", 8, 3, 28, 3, Q("15 mm")))
sketch4.addConstraint(Sketcher.Constraint("DistanceX", 32, 3, 0, 3, Q("15 mm")))
sketch4.addConstraint(Sketcher.Constraint("DistanceX", 0, 3, -1, 1, Q("1.5 mm")))
pocket2 = body.newObject("PartDesign::Pocket", "Pocket001")
pocket2.Profile = sketch4
pocket2.Length = 2
doc.recompute()

linearpattern2 = body.newObject("PartDesign::LinearPattern", "LinearPattern001")
linearpattern2.Originals = [pocket2, pocket1]
linearpattern2.Direction = (doc.getObject("X_Axis"), [""])
linearpattern2.Mode = "offset"
linearpattern2.Offset = 15
linearpattern2.Occurrences = 2
body.Tip = linearpattern2

sketch5 = body.newObject("Sketcher::SketchObject", "Sketch004")
sketch5.AttachmentSupport = (doc.getObject("YZ_Plane"), [""])
sketch5.MapMode = "FlatFace"
sketch5.AttachmentOffset = App.Placement(V(0, 0, 35.5), App.Rotation())
add_polygon(sketch5, [(-30, -6), (0, -6), (0, -4.5), (-30, -4.5)])
sketch5.addConstraint(Sketcher.Constraint("Horizontal", 0))
sketch5.addConstraint(Sketcher.Constraint("Vertical", 1))
sketch5.addConstraint(Sketcher.Constraint("Horizontal", 2))
sketch5.addConstraint(Sketcher.Constraint("Vertical", 3))
sketch5.addConstraint(Sketcher.Constraint("PointOnObject", 0, 2, -2))
sketch5.addConstraint(Sketcher.Constraint("DistanceX", 0, 1, 0, 2, Q("30 mm")))
sketch5.addConstraint(Sketcher.Constraint("DistanceY", 1, 1, 1, 2, Q("1.5 mm")))
sketch5.addConstraint(Sketcher.Constraint("DistanceY", 0, 2, -1, 1, Q("6 mm")))
pad3 = body.newObject("PartDesign::Pad", "Pad002")
pad3.Profile = sketch5
pad3.Length = 0.4
body2 = doc.addObject("PartDesign::Body", "Body001")
doc.recompute()

body.Placement = App.Placement(V(2.5, -156, 9), App.Rotation(V(0, 0, 1), 180))
boolean = body2.newObject("PartDesign::Boolean", "Boolean")
boolean.Type = "Fuse"
boolean.addObjects([body])

doc.recompute()
